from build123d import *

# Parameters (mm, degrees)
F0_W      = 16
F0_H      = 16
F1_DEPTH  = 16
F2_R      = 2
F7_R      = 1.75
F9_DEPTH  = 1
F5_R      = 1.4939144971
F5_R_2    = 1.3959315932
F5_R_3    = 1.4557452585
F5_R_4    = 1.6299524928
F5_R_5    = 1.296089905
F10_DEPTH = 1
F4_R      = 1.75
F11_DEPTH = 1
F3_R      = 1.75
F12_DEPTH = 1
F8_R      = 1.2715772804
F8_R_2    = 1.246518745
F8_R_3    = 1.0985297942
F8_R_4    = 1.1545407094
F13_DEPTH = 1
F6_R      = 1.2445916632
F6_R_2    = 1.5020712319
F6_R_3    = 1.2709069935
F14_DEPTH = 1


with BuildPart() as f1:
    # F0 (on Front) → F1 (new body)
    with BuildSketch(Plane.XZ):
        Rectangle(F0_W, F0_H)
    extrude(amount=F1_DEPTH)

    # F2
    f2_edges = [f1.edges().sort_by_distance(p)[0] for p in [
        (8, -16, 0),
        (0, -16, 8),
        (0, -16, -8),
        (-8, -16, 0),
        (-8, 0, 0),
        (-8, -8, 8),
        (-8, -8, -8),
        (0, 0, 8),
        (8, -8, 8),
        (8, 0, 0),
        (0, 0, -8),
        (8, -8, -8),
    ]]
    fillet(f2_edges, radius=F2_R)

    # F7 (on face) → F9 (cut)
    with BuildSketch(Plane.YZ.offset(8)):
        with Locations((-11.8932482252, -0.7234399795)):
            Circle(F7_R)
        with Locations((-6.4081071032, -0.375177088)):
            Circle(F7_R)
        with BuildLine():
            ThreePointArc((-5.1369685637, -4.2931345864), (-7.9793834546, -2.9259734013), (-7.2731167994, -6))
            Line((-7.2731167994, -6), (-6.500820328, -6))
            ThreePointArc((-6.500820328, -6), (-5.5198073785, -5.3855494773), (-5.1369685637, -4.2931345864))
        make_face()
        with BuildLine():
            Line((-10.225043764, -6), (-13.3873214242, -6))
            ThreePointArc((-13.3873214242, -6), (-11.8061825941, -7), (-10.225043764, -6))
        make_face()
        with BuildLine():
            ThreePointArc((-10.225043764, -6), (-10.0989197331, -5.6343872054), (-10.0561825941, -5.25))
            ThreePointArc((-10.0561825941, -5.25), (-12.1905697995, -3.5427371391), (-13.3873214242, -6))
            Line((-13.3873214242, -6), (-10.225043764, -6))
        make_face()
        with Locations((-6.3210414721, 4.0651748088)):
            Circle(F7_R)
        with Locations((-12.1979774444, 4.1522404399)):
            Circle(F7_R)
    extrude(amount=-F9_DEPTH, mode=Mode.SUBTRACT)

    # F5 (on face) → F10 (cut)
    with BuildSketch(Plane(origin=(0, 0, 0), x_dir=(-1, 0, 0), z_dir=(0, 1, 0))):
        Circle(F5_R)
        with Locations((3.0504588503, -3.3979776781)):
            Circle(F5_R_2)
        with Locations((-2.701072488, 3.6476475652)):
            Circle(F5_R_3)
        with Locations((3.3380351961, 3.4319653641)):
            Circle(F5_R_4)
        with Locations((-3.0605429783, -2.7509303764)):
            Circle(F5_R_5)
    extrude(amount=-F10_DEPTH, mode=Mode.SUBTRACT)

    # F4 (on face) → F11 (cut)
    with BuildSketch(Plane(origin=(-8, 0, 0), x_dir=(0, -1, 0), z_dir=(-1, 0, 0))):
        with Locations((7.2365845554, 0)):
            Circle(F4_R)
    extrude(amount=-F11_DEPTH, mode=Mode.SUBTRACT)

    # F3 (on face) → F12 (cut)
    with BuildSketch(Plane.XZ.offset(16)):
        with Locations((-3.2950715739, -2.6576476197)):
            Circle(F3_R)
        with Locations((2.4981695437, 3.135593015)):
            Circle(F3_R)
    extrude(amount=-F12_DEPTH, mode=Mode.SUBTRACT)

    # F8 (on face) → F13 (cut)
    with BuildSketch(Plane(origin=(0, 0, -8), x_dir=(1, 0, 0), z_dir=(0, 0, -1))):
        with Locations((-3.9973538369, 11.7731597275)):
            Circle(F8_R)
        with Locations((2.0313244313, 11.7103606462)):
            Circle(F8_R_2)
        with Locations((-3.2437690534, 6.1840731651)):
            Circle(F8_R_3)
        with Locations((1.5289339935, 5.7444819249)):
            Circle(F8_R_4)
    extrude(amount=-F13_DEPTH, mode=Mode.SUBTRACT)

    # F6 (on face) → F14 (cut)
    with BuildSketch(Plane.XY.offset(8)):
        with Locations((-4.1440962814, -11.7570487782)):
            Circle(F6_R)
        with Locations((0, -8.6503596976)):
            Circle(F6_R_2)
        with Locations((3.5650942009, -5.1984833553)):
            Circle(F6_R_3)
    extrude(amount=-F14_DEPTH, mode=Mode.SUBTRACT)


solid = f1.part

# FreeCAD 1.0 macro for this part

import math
import FreeCAD as App
import Part
import Sketcher
from FreeCAD import Vector

doc = App.newDocument("Part")
body = doc.addObject("PartDesign::Body", "Body")

sketch1 = body.newObject("Sketcher::SketchObject", "Sketch")
sketch1.AttachmentSupport = (doc.getObject("XZ_Plane"), [""])
sketch1.MapMode = "FlatFace"
sketch1.addGeometry([
    Part.LineSegment(Vector(-8, 8, 0), Vector(-8, -8, 0)),
    Part.LineSegment(Vector(-8, -8, 0), Vector(8, -8, 0)),
    Part.LineSegment(Vector(8, -8, 0), Vector(8, 8, 0)),
    Part.LineSegment(Vector(8, 8, 0), Vector(-8, 8, 0)),
], False)
sketch1.addConstraint([
    Sketcher.Constraint("Coincident", 0, 2, 1, 1),
    Sketcher.Constraint("Coincident", 1, 2, 2, 1),
    Sketcher.Constraint("Coincident", 2, 2, 3, 1),
    Sketcher.Constraint("Coincident", 3, 2, 0, 1),
    Sketcher.Constraint("Vertical", 0),
    Sketcher.Constraint("Horizontal", 1),
    Sketcher.Constraint("Vertical", 2),
    Sketcher.Constraint("Horizontal", 3),
    Sketcher.Constraint("Symmetric", 0, 2, 2, 2, -1, 1),
    Sketcher.Constraint("Equal", 3, 0),
    Sketcher.Constraint("DistanceX", 1, 1, 1, 2, 16.0),
])
pad1 = body.newObject("PartDesign::Pad", "Pad")
pad1.Profile = sketch1
pad1.Length = 16
doc.recompute()

fillet = body.newObject("PartDesign::Fillet", "Fillet")
fillet.Base = (pad1, ["Edge1"])
fillet.UseAllEdges = True
fillet.Radius = 2

sketch2 = body.newObject("Sketcher::SketchObject", "Sketch001")
sketch2.AttachmentSupport = (doc.getObject("YZ_Plane"), [""])
sketch2.MapMode = "FlatFace"
sketch2.AttachmentOffset = App.Placement(Vector(0, 0, 8), App.Rotation())
sketch2.addGeometry([
    Part.Circle(Vector(-11.893248, -0.72344, 0), Vector(0, 0, 1), 1.75),
    Part.Circle(Vector(-6.408107, -0.375177, 0), Vector(0, 0, 1), 1.75),
    Part.ArcOfCircle(Part.Circle(Vector(-6.886969, -4.293135, 0), Vector(0, 0, 1), 1.75), math.radians(0), math.radians(257.252426)),
    Part.LineSegment(Vector(-7.273117, -6, 0), Vector(-6.50082, -6, 0)),
    Part.ArcOfCircle(Part.Circle(Vector(-6.886969, -4.293135, 0), Vector(0, 0, 1), 1.75), math.radians(-77.252426), math.radians(0)),
    Part.ArcOfCircle(Part.Circle(Vector(-11.806183, -5.25, 0), Vector(0, 0, 1), 1.75), math.radians(-154.623066), math.radians(-25.376934)),
    Part.ArcOfCircle(Part.Circle(Vector(-11.806183, -5.25, 0), Vector(0, 0, 1), 1.75), math.radians(-25.376934), math.radians(0)),
    Part.ArcOfCircle(Part.Circle(Vector(-11.806183, -5.25, 0), Vector(0, 0, 1), 1.75), math.radians(0), math.radians(205.376934)),
    Part.Circle(Vector(-6.321041, 4.065175, 0), Vector(0, 0, 1), 1.75),
    Part.Circle(Vector(-12.197977, 4.15224, 0), Vector(0, 0, 1), 1.75),
], False)
sketch2.addConstraint([
    Sketcher.Constraint("Coincident", 2, 2, 3, 1),
    Sketcher.Constraint("Coincident", 3, 2, 4, 1),
    Sketcher.Constraint("Tangent", 4, 2, 2, 1),
    Sketcher.Constraint("Tangent", 5, 2, 6, 1),
    Sketcher.Constraint("Tangent", 6, 2, 7, 1),
    Sketcher.Constraint("Tangent", 7, 2, 5, 1),
    Sketcher.Constraint("Horizontal", 3),
    Sketcher.Constraint("Equal", 0, 1),
    Sketcher.Constraint("Equal", 1, 2),
    Sketcher.Constraint("Equal", 2, 4),
    Sketcher.Constraint("Equal", 4, 5),
    Sketcher.Constraint("Equal", 7, 8),
    Sketcher.Constraint("Equal", 8, 9),
    Sketcher.Constraint("Horizontal", 2, 3, 4, 2),
    Sketcher.Constraint("Horizontal", 3, 2, 5, 2),
    Sketcher.Constraint("Horizontal", 7, 3, 6, 2),
    Sketcher.Constraint("Horizontal", 5, 2, 7, 2),
    Sketcher.Constraint("Diameter", 0, 3.5),
    Sketcher.Constraint("DistanceY", 2, 2, -1, 1, 6.0),
    Sketcher.Constraint("DistanceY", 5, 3, -1, 1, 5.25),
    Sketcher.Constraint("DistanceX", 3, 1, 3, 2, 0.772296),
    Sketcher.Constraint("DistanceX", 0, 3, -1, 1, 11.893248),
    Sketcher.Constraint("DistanceY", 0, 3, -1, 1, 0.72344),
    Sketcher.Constraint("DistanceX", 2, 3, -1, 1, 6.886969),
    Sketcher.Constraint("DistanceX", 8, 3, -1, 1, 6.321041),
    Sketcher.Constraint("DistanceY", -1, 1, 9, 3, 4.15224),
    Sketcher.Constraint("DistanceX", 7, 2, -1, 1, 13.387321),
    Sketcher.Constraint("DistanceX", 0, 3, 1, 3, 5.485141),
    Sketcher.Constraint("DistanceY", 1, 3, 8, 3, 4.440352),
    Sketcher.Constraint("DistanceY", 2, 3, 8, 3, 8.358309),
    Sketcher.Constraint("DistanceX", 9, 3, 0, 3, 0.304729),
])
pocket1 = body.newObject("PartDesign::Pocket", "Pocket")
pocket1.Profile = sketch2
pocket1.Length = 1

sketch3 = body.newObject("Sketcher::SketchObject", "Sketch002")
sketch3.AttachmentSupport = (doc.getObject("XZ_Plane"), [""])
sketch3.MapMode = "FlatFace"
sketch3.addGeometry([
    Part.Circle(Vector(0, 0, 0), Vector(0, 0, 1), 1.493914),
    Part.Circle(Vector(-3.050459, -3.397978, 0), Vector(0, 0, 1), 1.395932),
    Part.Circle(Vector(2.701072, 3.647648, 0), Vector(0, 0, 1), 1.455745),
    Part.Circle(Vector(-3.338035, 3.431965, 0), Vector(0, 0, 1), 1.629952),
    Part.Circle(Vector(3.060543, -2.75093, 0), Vector(0, 0, 1), 1.29609),
], False)
sketch3.addConstraint([
    Sketcher.Constraint("Coincident", 0, 3, -1, 1),
    Sketcher.Constraint("Diameter", 0, 2.987829),
    Sketcher.Constraint("Diameter", 2, 2.911491),
    Sketcher.Constraint("Diameter", 4, 2.59218),
    Sketcher.Constraint("Diameter", 1, 2.791863),
    Sketcher.Constraint("Diameter", 3, 3.259905),
    Sketcher.Constraint("DistanceX", 1, 3, 4, 3, 6.111002),
    Sketcher.Constraint("DistanceX", 1, 3, -1, 1, 3.050459),
    Sketcher.Constraint("DistanceY", 4, 3, -1, 1, 2.75093),
    Sketcher.Constraint("DistanceX", 1, 3, 2, 3, 5.751531),
    Sketcher.Constraint("DistanceX", 3, 3, 4, 3, 6.398578),
    Sketcher.Constraint("DistanceY", 1, 3, -1, 1, 3.397978),
    Sketcher.Constraint("DistanceY", -1, 1, 2, 3, 3.647648),
    Sketcher.Constraint("DistanceY", -1, 1, 3, 3, 3.431965),
])
pocket2 = body.newObject("PartDesign::Pocket", "Pocket001")
pocket2.Profile = sketch3
pocket2.Length = 1
pocket2.Reversed = True

sketch4 = body.newObject("Sketcher::SketchObject", "Sketch003")
sketch4.AttachmentSupport = (doc.getObject("YZ_Plane"), [""])
sketch4.MapMode = "FlatFace"
sketch4.AttachmentOffset = App.Placement(Vector(0, 0, -8), App.Rotation())
sketch4.addGeometry(Part.Circle(Vector(-7.236585, 0, 0), Vector(0, 0, 1), 1.75), False)
sketch4.addConstraint([
    Sketcher.Constraint("PointOnObject", 0, 3, -1),
    Sketcher.Constraint("Diameter", 0, 3.5),
    Sketcher.Constraint("DistanceX", 0, 3, -1, 1, 7.236585),
])
pocket3 = body.newObject("PartDesign::Pocket", "Pocket002")
pocket3.Profile = sketch4
pocket3.Length = 1
pocket3.Reversed = True

sketch5 = body.newObject("Sketcher::SketchObject", "Sketch004")
sketch5.AttachmentSupport = (doc.getObject("XZ_Plane"), [""])
sketch5.MapMode = "FlatFace"
sketch5.AttachmentOffset = App.Placement(Vector(0, 0, 16), App.Rotation())
sketch5.addGeometry([
    Part.Circle(Vector(-3.295072, -2.657648, 0), Vector(0, 0, 1), 1.75),
    Part.Circle(Vector(2.49817, 3.135593, 0), Vector(0, 0, 1), 1.75),
], False)
sketch5.addConstraint([
    Sketcher.Constraint("Equal", 0, 1),
    Sketcher.Constraint("Diameter", 0, 3.5),
    Sketcher.Constraint("DistanceX", 0, 3, -1, 1, 3.295072),
    Sketcher.Constraint("DistanceX", -1, 1, 1, 3, 2.49817),
    Sketcher.Constraint("DistanceY", 0, 3, 1, 3, 5.793241),
    Sketcher.Constraint("DistanceY", 0, 3, -1, 1, 2.657648),
])
pocket4 = body.newObject("PartDesign::Pocket", "Pocket003")
pocket4.Profile = sketch5
pocket4.Length = 1

sketch6 = body.newObject("Sketcher::SketchObject", "Sketch005")
sketch6.AttachmentSupport = (doc.getObject("XY_Plane"), [""])
sketch6.MapMode = "FlatFace"
sketch6.AttachmentOffset = App.Placement(Vector(0, 0, -8), App.Rotation())
sketch6.addGeometry([
    Part.Circle(Vector(-3.997354, -11.77316, 0), Vector(0, 0, 1), 1.271577),
    Part.Circle(Vector(2.031324, -11.710361, 0), Vector(0, 0, 1), 1.246519),
    Part.Circle(Vector(-3.243769, -6.184073, 0), Vector(0, 0, 1), 1.09853),
    Part.Circle(Vector(1.528934, -5.744482, 0), Vector(0, 0, 1), 1.154541),
], False)
sketch6.addConstraint([
    Sketcher.Constraint("Diameter", 2, 2.19706),
    Sketcher.Constraint("Diameter", 3, 2.309081),
    Sketcher.Constraint("Diameter", 0, 2.543155),
    Sketcher.Constraint("Diameter", 1, 2.493037),
    Sketcher.Constraint("DistanceY", 0, 3, 1, 3, 0.062799),
    Sketcher.Constraint("DistanceY", 0, 3, -1, 1, 11.77316),
    Sketcher.Constraint("DistanceX", 2, 3, -1, 1, 3.243769),
    Sketcher.Constraint("DistanceY", 3, 3, -1, 1, 5.744482),
    Sketcher.Constraint("DistanceX", 0, 3, 1, 3, 6.028678),
    Sketcher.Constraint("DistanceY", 2, 3, 3, 3, 0.439591),
    Sketcher.Constraint("DistanceX", 3, 3, 1, 3, 0.50239),
    Sketcher.Constraint("DistanceX", 0, 3, -1, 1, 3.997354),
])
pocket5 = body.newObject("PartDesign::Pocket", "Pocket004")
pocket5.Profile = sketch6
pocket5.Length = 1
pocket5.Reversed = True

sketch7 = body.newObject("Sketcher::SketchObject", "Sketch006")
sketch7.AttachmentSupport = (doc.getObject("XY_Plane"), [""])
sketch7.MapMode = "FlatFace"
sketch7.AttachmentOffset = App.Placement(Vector(0, 0, 8), App.Rotation())
sketch7.addGeometry([
    Part.Circle(Vector(-4.144096, -11.757049, 0), Vector(0, 0, 1), 1.244592),
    Part.Circle(Vector(0, -8.65036, 0), Vector(0, 0, 1), 1.502071),
    Part.Circle(Vector(3.565094, -5.198483, 0), Vector(0, 0, 1), 1.270907),
], False)
sketch7.addConstraint([
    Sketcher.Constraint("PointOnObject", 1, 3, -2),
    Sketcher.Constraint("Diameter", 0, 2.489183),
    Sketcher.Constraint("Diameter", 1, 3.004142),
    Sketcher.Constraint("Diameter", 2, 2.541814),
    Sketcher.Constraint("DistanceY", 0, 3, -1, 1, 11.757049),
    Sketcher.Constraint("DistanceY", 1, 3, -1, 1, 8.65036),
    Sketcher.Constraint("DistanceX", 0, 3, 2, 3, 7.70919),
    Sketcher.Constraint("DistanceX", 0, 3, -1, 1, 4.144096),
    Sketcher.Constraint("DistanceY", 2, 3, -1, 1, 5.198483),
])
pocket6 = body.newObject("PartDesign::Pocket", "Pocket005")
pocket6.Profile = sketch7
pocket6.Length = 1

doc.recompute()
